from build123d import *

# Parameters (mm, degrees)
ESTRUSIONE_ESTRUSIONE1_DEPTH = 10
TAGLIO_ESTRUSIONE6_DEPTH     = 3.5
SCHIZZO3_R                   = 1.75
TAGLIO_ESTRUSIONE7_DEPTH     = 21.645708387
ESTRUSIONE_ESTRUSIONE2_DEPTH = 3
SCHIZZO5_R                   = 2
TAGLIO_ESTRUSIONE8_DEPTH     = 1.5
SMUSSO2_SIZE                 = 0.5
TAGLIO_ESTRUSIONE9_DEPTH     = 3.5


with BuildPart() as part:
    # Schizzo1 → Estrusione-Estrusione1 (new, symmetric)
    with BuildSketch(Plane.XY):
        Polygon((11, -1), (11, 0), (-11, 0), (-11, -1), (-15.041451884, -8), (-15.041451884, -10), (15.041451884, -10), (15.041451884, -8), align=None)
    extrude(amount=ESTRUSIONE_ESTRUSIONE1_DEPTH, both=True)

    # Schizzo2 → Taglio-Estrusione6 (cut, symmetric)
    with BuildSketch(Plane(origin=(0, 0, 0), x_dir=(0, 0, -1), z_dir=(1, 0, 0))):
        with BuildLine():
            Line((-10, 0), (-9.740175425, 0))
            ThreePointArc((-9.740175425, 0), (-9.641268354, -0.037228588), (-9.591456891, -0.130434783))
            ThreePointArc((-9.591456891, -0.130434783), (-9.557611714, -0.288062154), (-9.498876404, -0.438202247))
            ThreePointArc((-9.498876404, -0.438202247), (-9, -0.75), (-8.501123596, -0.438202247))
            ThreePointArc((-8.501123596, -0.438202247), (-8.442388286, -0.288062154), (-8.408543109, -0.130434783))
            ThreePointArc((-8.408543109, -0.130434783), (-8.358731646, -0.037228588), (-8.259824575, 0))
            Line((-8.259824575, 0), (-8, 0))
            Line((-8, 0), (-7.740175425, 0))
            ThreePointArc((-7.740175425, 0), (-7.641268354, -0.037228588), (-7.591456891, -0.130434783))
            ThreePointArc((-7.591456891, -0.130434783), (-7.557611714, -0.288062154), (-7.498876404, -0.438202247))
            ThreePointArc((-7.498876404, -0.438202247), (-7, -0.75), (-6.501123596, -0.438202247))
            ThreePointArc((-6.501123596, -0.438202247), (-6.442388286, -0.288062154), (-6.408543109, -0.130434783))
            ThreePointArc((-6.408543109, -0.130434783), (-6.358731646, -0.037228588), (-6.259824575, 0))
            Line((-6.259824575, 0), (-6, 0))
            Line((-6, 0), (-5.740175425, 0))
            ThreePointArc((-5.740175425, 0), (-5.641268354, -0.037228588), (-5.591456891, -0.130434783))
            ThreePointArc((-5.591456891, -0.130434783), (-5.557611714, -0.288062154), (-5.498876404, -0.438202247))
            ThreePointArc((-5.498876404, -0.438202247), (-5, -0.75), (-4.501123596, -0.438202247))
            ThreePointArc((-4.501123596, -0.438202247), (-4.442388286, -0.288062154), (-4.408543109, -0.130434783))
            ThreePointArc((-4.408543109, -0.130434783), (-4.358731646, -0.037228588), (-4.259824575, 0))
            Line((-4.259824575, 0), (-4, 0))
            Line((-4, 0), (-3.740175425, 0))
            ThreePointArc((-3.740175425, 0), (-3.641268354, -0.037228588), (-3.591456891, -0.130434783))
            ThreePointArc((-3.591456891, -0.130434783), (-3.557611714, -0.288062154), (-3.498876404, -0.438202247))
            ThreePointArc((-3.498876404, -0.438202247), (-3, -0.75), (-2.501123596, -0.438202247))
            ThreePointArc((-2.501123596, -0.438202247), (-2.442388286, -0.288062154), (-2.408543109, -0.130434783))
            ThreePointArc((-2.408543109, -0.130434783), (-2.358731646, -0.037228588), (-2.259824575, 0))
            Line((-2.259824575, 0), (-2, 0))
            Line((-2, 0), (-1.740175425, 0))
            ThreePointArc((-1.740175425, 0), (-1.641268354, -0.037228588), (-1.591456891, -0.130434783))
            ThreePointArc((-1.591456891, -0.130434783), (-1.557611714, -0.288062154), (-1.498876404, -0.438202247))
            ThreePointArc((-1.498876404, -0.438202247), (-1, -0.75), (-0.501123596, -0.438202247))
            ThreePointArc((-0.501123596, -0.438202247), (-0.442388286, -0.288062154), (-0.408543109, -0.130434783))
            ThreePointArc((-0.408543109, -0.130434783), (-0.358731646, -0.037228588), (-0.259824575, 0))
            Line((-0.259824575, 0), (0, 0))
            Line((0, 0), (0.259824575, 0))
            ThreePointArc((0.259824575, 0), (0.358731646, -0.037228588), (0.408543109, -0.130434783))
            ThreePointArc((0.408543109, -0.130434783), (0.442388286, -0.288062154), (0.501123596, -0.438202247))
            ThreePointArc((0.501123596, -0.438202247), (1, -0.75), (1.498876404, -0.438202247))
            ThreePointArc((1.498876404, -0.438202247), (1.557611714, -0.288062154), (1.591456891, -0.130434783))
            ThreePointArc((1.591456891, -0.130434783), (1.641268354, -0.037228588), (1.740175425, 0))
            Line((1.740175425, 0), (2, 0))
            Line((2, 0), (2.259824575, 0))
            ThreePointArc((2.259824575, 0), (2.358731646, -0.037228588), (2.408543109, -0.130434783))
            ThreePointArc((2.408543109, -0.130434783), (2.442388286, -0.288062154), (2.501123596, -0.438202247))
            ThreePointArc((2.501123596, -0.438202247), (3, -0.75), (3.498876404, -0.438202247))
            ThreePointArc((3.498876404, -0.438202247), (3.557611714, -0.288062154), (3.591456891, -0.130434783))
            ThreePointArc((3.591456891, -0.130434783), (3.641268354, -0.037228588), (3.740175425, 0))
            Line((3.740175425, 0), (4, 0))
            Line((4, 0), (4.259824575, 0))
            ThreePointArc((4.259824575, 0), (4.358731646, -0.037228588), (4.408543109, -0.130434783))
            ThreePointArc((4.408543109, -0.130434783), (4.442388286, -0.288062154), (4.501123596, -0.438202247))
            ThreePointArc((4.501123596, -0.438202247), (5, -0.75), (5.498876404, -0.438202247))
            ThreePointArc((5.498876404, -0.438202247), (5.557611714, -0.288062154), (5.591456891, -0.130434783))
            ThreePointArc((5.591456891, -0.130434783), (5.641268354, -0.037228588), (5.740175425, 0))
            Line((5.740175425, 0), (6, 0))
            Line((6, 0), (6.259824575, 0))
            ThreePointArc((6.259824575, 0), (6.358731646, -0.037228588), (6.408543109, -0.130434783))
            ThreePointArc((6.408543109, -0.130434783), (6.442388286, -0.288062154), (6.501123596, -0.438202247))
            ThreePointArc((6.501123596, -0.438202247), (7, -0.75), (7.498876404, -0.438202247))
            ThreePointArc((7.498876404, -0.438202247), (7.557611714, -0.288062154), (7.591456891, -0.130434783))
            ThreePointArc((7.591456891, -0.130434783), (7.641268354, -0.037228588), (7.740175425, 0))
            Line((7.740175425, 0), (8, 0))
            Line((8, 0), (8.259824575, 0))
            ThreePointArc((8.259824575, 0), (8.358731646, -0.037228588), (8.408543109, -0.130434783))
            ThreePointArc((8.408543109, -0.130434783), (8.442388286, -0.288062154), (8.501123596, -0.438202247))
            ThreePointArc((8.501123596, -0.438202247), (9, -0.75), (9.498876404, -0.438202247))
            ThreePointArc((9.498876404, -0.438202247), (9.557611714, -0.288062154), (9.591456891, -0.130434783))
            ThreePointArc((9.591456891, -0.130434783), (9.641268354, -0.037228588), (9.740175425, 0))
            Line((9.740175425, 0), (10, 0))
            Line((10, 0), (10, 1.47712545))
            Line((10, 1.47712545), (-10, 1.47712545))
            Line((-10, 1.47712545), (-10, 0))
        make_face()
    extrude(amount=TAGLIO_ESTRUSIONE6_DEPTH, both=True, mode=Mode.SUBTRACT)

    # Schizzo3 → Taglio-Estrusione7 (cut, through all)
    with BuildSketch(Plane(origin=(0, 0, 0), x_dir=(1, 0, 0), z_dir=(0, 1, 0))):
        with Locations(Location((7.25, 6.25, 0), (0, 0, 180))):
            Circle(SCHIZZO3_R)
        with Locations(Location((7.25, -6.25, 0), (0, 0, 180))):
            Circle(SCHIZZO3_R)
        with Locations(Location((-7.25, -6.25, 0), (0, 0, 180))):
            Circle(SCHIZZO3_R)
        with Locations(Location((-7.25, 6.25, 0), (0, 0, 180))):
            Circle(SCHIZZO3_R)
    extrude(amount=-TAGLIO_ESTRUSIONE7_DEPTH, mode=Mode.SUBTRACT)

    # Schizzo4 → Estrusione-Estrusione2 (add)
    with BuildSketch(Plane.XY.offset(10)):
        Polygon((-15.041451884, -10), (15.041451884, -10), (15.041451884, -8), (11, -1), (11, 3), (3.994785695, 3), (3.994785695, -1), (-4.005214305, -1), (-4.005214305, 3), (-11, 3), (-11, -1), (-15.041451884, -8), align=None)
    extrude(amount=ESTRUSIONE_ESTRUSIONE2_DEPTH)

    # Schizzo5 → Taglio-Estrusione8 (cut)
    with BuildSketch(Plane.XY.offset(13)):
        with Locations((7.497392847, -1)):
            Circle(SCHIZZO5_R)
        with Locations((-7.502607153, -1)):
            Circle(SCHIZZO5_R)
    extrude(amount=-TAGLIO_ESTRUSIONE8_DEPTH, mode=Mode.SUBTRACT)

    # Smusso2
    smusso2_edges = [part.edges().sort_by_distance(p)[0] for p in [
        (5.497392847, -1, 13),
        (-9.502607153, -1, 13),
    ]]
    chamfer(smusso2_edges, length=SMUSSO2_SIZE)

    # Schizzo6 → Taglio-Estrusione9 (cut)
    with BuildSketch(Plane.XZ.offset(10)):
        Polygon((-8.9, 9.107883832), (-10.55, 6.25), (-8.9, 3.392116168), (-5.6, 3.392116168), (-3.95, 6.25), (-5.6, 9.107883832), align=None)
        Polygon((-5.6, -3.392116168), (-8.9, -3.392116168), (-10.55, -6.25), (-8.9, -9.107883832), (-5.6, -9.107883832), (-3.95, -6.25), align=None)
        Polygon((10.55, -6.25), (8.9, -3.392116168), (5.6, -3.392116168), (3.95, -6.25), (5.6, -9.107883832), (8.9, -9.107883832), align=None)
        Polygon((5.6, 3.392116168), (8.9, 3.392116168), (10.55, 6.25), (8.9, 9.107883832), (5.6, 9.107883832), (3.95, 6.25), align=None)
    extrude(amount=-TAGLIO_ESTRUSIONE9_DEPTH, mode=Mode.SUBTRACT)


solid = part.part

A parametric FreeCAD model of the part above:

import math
import FreeCAD as App
import Part
import Sketcher

V = App.Vector
Q = App.Units.Quantity


def edges_at(feature, points):
    """Names of the edges that pass closest to the given points."""
    edges = feature.Shape.Edges
    near = lambda p: min(range(len(edges)), key=lambda i: edges[i].distToShape(Part.Vertex(*p))[0])
    return sorted({f"Edge{near(p) + 1}" for p in points})


def add_polygon(sketch, points):
    """Adds a closed chain of lines whose ends are joined by coincident constraints."""
    first, n = sketch.GeometryCount, len(points)
    for a, b in zip(points, points[1:] + points[:1]):
        sketch.addGeometry(Part.LineSegment(App.Vector(*a, 0), App.Vector(*b, 0)), False)
    for i in range(n):
        sketch.addConstraint(Sketcher.Constraint("Coincident", first + i, 2, first + (i + 1) % n, 1))

doc = App.newDocument("Part")
body = doc.addObject("PartDesign::Body", "Body")

# Sketch on XY plane
sketch1 = doc.addObject("Sketcher::SketchObject", "Sketch")
body.addObject(sketch1)
sketch1.AttachmentSupport = (doc.XY_Plane, [""])
sketch1.MapMode = "FlatFace"
add_polygon(sketch1, [(11, -1), (11, 0), (-11, 0), (-11, -1), (-15.041452, -8), (-15.041452, -10), (15.041452, -10), (15.041452, -8)])  # lines 0-7
sketch1.addConstraint([
    Sketcher.Constraint("Vertical", 0),
    Sketcher.Constraint("Horizontal", 1),
    Sketcher.Constraint("Vertical", 2),
    Sketcher.Constraint("Vertical", 4),
    Sketcher.Constraint("Horizontal", 5),
    Sketcher.Constraint("Vertical", 6),
    Sketcher.Constraint("Symmetric", 0, 2, 1, 2, -1, 1),
    Sketcher.Constraint("Symmetric", 3, 2, 6, 2, -2),
    Sketcher.Constraint("Horizontal", 2, 2, 7, 2),
    Sketcher.Constraint("DistanceX", 1, 2, 1, 1, Q("22 mm")),
    Sketcher.Constraint("DistanceY", 0, 1, 0, 2, Q("1 mm")),
    Sketcher.Constraint("DistanceY", 4, 2, 4, 1, Q("2 mm")),
    Sketcher.Constraint("Angle", 3, Q("-120 deg")),
    Sketcher.Constraint("DistanceY", 3, 2, -1, 1, Q("8 mm")),
])
pad1 = doc.addObject("PartDesign::Pad", "Pad")
body.addObject(pad1)
pad1.Profile = sketch1
pad1.Length = 20
pad1.Midplane = True

# Sketch on YZ plane
sketch2 = doc.addObject("Sketcher::SketchObject", "Sketch001")
body.addObject(sketch2)
sketch2.AttachmentSupport = (doc.YZ_Plane, [""])
sketch2.MapMode = "FlatFace"
sketch2.addGeometry([
    Part.LineSegment(V(0, 10, 0), V(0, 9.740175, 0)),  # 0
    Part.ArcOfCircle(Part.Circle(V(-0.15, 9.740175, 0), V(0, 0, 1), 0.15), math.radians(-82.505283), math.radians(0)),  # 1
    Part.ArcOfCircle(Part.Circle(V(0, 8.6, 0), V(0, 0, 1), 1), math.radians(97.494717), math.radians(115.989234)),  # 2
    Part.ArcOfCircle(Part.Circle(V(-0.195, 9, 0), V(0, 0, 1), 0.555), math.radians(115.989233), math.radians(244.010767)),  # 3
    Part.ArcOfCircle(Part.Circle(V(0, 9.4, 0), V(0, 0, 1), 1), math.radians(-115.989234), math.radians(-97.494717)),  # 4
    Part.ArcOfCircle(Part.Circle(V(-0.15, 8.259825, 0), V(0, 0, 1), 0.15), math.radians(0), math.radians(82.505283)),  # 5
    Part.LineSegment(V(0, 8.259825, 0), V(0, 7.740175, 0)),  # 6
    Part.ArcOfCircle(Part.Circle(V(-0.15, 7.740175, 0), V(0, 0, 1), 0.15), math.radians(-82.505283), math.radians(0)),  # 7
    Part.ArcOfCircle(Part.Circle(V(0, 6.6, 0), V(0, 0, 1), 1), math.radians(97.494717), math.radians(115.989234)),  # 8
    Part.ArcOfCircle(Part.Circle(V(-0.195, 7, 0), V(0, 0, 1), 0.555), math.radians(115.989233), math.radians(244.010767)),  # 9
    Part.ArcOfCircle(Part.Circle(V(0, 7.4, 0), V(0, 0, 1), 1), math.radians(-115.989234), math.radians(-97.494717)),  # 10
    Part.ArcOfCircle(Part.Circle(V(-0.15, 6.259825, 0), V(0, 0, 1), 0.15), math.radians(0), math.radians(82.505283)),  # 11
    Part.LineSegment(V(0, 6.259825, 0), V(0, 5.740175, 0)),  # 12
    Part.ArcOfCircle(Part.Circle(V(-0.15, 5.740175, 0), V(0, 0, 1), 0.15), math.radians(-82.505283), math.radians(0)),  # 13
    Part.ArcOfCircle(Part.Circle(V(0, 4.6, 0), V(0, 0, 1), 1), math.radians(97.494717), math.radians(115.989234)),  # 14
    Part.ArcOfCircle(Part.Circle(V(-0.195, 5, 0), V(0, 0, 1), 0.555), math.radians(115.989233), math.radians(244.010767)),  # 15
    Part.ArcOfCircle(Part.Circle(V(0, 5.4, 0), V(0, 0, 1), 1), math.radians(-115.989234), math.radians(-97.494717)),  # 16
    Part.ArcOfCircle(Part.Circle(V(-0.15, 4.259825, 0), V(0, 0, 1), 0.15), math.radians(0), math.radians(82.505283)),  # 17
    Part.LineSegment(V(0, 4.259825, 0), V(0, 3.740175, 0)),  # 18
    Part.ArcOfCircle(Part.Circle(V(-0.15, 3.740175, 0), V(0, 0, 1), 0.15), math.radians(-82.505283), math.radians(0)),  # 19
    Part.ArcOfCircle(Part.Circle(V(0, 2.6, 0), V(0, 0, 1), 1), math.radians(97.494717), math.radians(115.989234)),  # 20
    Part.ArcOfCircle(Part.Circle(V(-0.195, 3, 0), V(0, 0, 1), 0.555), math.radians(115.989233), math.radians(244.010767)),  # 21
    Part.ArcOfCircle(Part.Circle(V(0, 3.4, 0), V(0, 0, 1), 1), math.radians(-115.989234), math.radians(-97.494717)),  # 22
    Part.ArcOfCircle(Part.Circle(V(-0.15, 2.259825, 0), V(0, 0, 1), 0.15), math.radians(0), math.radians(82.505283)),  # 23
    Part.LineSegment(V(0, 2.259825, 0), V(0, 1.740175, 0)),  # 24
    Part.ArcOfCircle(Part.Circle(V(-0.15, 1.740175, 0), V(0, 0, 1), 0.15), math.radians(-82.505283), math.radians(0)),  # 25
    Part.ArcOfCircle(Part.Circle(V(0, 0.6, 0), V(0, 0, 1), 1), math.radians(97.494717), math.radians(115.989234)),  # 26
    Part.ArcOfCircle(Part.Circle(V(-0.195, 1, 0), V(0, 0, 1), 0.555), math.radians(115.989233), math.radians(244.010767)),  # 27
    Part.ArcOfCircle(Part.Circle(V(0, 1.4, 0), V(0, 0, 1), 1), math.radians(-115.989234), math.radians(-97.494717)),  # 28
    Part.ArcOfCircle(Part.Circle(V(-0.15, 0.259825, 0), V(0, 0, 1), 0.15), math.radians(0), math.radians(82.505283)),  # 29
    Part.LineSegment(V(0, 0.259825, 0), V(0, -0.259825, 0)),  # 30
    Part.ArcOfCircle(Part.Circle(V(-0.15, -0.259825, 0), V(0, 0, 1), 0.15), math.radians(-82.505283), math.radians(0)),  # 31
    Part.ArcOfCircle(Part.Circle(V(0, -1.4, 0), V(0, 0, 1), 1), math.radians(97.494717), math.radians(115.989234)),  # 32
    Part.ArcOfCircle(Part.Circle(V(-0.195, -1, 0), V(0, 0, 1), 0.555), math.radians(115.989233), math.radians(244.010767)),  # 33
    Part.ArcOfCircle(Part.Circle(V(0, -0.6, 0), V(0, 0, 1), 1), math.radians(-115.989234), math.radians(-97.494717)),  # 34
    Part.ArcOfCircle(Part.Circle(V(-0.15, -1.740175, 0), V(0, 0, 1), 0.15), math.radians(0), math.radians(82.505283)),  # 35
    Part.LineSegment(V(0, -1.740175, 0), V(0, -2.259825, 0)),  # 36
    Part.ArcOfCircle(Part.Circle(V(-0.15, -2.259825, 0), V(0, 0, 1), 0.15), math.radians(-82.505283), math.radians(0)),  # 37
    Part.ArcOfCircle(Part.Circle(V(0, -3.4, 0), V(0, 0, 1), 1), math.radians(97.494717), math.radians(115.989234)),  # 38
    Part.ArcOfCircle(Part.Circle(V(-0.195, -3, 0), V(0, 0, 1), 0.555), math.radians(115.989233), math.radians(244.010767)),  # 39
    Part.ArcOfCircle(Part.Circle(V(0, -2.6, 0), V(0, 0, 1), 1), math.radians(-115.989234), math.radians(-97.494717)),  # 40
    Part.ArcOfCircle(Part.Circle(V(-0.15, -3.740175, 0), V(0, 0, 1), 0.15), math.radians(0), math.radians(82.505283)),  # 41
    Part.LineSegment(V(0, -3.740175, 0), V(0, -4.259825, 0)),  # 42
    Part.ArcOfCircle(Part.Circle(V(-0.15, -4.259825, 0), V(0, 0, 1), 0.15), math.radians(-82.505283), math.radians(0)),  # 43
    Part.ArcOfCircle(Part.Circle(V(0, -5.4, 0), V(0, 0, 1), 1), math.radians(97.494717), math.radians(115.989234)),  # 44
    Part.ArcOfCircle(Part.Circle(V(-0.195, -5, 0), V(0, 0, 1), 0.555), math.radians(115.989233), math.radians(244.010767)),  # 45
    Part.ArcOfCircle(Part.Circle(V(0, -4.6, 0), V(0, 0, 1), 1), math.radians(-115.989234), math.radians(-97.494717)),  # 46
    Part.ArcOfCircle(Part.Circle(V(-0.15, -5.740175, 0), V(0, 0, 1), 0.15), math.radians(0), math.radians(82.505283)),  # 47
    Part.LineSegment(V(0, -5.740175, 0), V(0, -6.259825, 0)),  # 48
    Part.ArcOfCircle(Part.Circle(V(-0.15, -6.259825, 0), V(0, 0, 1), 0.15), math.radians(-82.505283), math.radians(0)),  # 49
    Part.ArcOfCircle(Part.Circle(V(0, -7.4, 0), V(0, 0, 1), 1), math.radians(97.494717), math.radians(115.989234)),  # 50
    Part.ArcOfCircle(Part.Circle(V(-0.195, -7, 0), V(0, 0, 1), 0.555), math.radians(115.989233), math.radians(244.010767)),  # 51
    Part.ArcOfCircle(Part.Circle(V(0, -6.6, 0), V(0, 0, 1), 1), math.radians(-115.989234), math.radians(-97.494717)),  # 52
    Part.ArcOfCircle(Part.Circle(V(-0.15, -7.740175, 0), V(0, 0, 1), 0.15), math.radians(0), math.radians(82.505283)),  # 53
    Part.LineSegment(V(0, -7.740175, 0), V(0, -8.259825, 0)),  # 54
    Part.ArcOfCircle(Part.Circle(V(-0.15, -8.259825, 0), V(0, 0, 1), 0.15), math.radians(-82.505283), math.radians(0)),  # 55
    Part.ArcOfCircle(Part.Circle(V(0, -9.4, 0), V(0, 0, 1), 1), math.radians(97.494717), math.radians(115.989234)),  # 56
    Part.ArcOfCircle(Part.Circle(V(-0.195, -9, 0), V(0, 0, 1), 0.555), math.radians(115.989233), math.radians(244.010767)),  # 57
    Part.ArcOfCircle(Part.Circle(V(0, -8.6, 0), V(0, 0, 1), 1), math.radians(-115.989234), math.radians(-97.494717)),  # 58
    Part.ArcOfCircle(Part.Circle(V(-0.15, -9.740175, 0), V(0, 0, 1), 0.15), math.radians(0), math.radians(82.505283)),  # 59
    Part.LineSegment(V(0, -9.740175, 0), V(0, -10, 0)),  # 60
    Part.LineSegment(V(0, -10, 0), V(1.477125, -10, 0)),  # 61
    Part.LineSegment(V(1.477125, -10, 0), V(1.477125, 10, 0)),  # 62
    Part.LineSegment(V(1.477125, 10, 0), V(0, 10, 0)),  # 63
], False)
sketch2.addConstraint([
    Sketcher.Constraint("Tangent", 0, 2, 1, 2),
    Sketcher.Constraint("Tangent", 1, 1, 2, 1),
    Sketcher.Constraint("Tangent", 2, 2, 3, 1),
    Sketcher.Constraint("Tangent", 3, 2, 4, 1),
    Sketcher.Constraint("Tangent", 4, 2, 5, 2),
    Sketcher.Constraint("Tangent", 5, 1, 6, 1),
    Sketcher.Constraint("Tangent", 6, 2, 7, 2),
    Sketcher.Constraint("Tangent", 7, 1, 8, 1),
    Sketcher.Constraint("Tangent", 8, 2, 9, 1),
    Sketcher.Constraint("Tangent", 9, 2, 10, 1),
    Sketcher.Constraint("Tangent", 10, 2, 11, 2),
    Sketcher.Constraint("Tangent", 11, 1, 12, 1),
    Sketcher.Constraint("Tangent", 12, 2, 13, 2),
    Sketcher.Constraint("Tangent", 13, 1, 14, 1),
    Sketcher.Constraint("Tangent", 14, 2, 15, 1),
    Sketcher.Constraint("Tangent", 15, 2, 16, 1),
    Sketcher.Constraint("Tangent", 16, 2, 17, 2),
    Sketcher.Constraint("Tangent", 17, 1, 18, 1),
    Sketcher.Constraint("Tangent", 18, 2, 19, 2),
    Sketcher.Constraint("Tangent", 19, 1, 20, 1),
    Sketcher.Constraint("Tangent", 20, 2, 21, 1),
    Sketcher.Constraint("Tangent", 21, 2, 22, 1),
    Sketcher.Constraint("Tangent", 22, 2, 23, 2),
    Sketcher.Constraint("Tangent", 23, 1, 24, 1),
    Sketcher.Constraint("Tangent", 24, 2, 25, 2),
    Sketcher.Constraint("Tangent", 25, 1, 26, 1),
    Sketcher.Constraint("Tangent", 26, 2, 27, 1),
    Sketcher.Constraint("Tangent", 27, 2, 28, 1),
    Sketcher.Constraint("Tangent", 28, 2, 29, 2),
    Sketcher.Constraint("Tangent", 29, 1, 30, 1),
    Sketcher.Constraint("Tangent", 30, 2, 31, 2),
    Sketcher.Constraint("Tangent", 31, 1, 32, 1),
    Sketcher.Constraint("Tangent", 32, 2, 33, 1),
    Sketcher.Constraint("Tangent", 33, 2, 34, 1),
    Sketcher.Constraint("Tangent", 34, 2, 35, 2),
    Sketcher.Constraint("Tangent", 35, 1, 36, 1),
    Sketcher.Constraint("Tangent", 36, 2, 37, 2),
    Sketcher.Constraint("Tangent", 37, 1, 38, 1),
    Sketcher.Constraint("Tangent", 38, 2, 39, 1),
    Sketcher.Constraint("Tangent", 39, 2, 40, 1),
    Sketcher.Constraint("Tangent", 40, 2, 41, 2),
    Sketcher.Constraint("Tangent", 41, 1, 42, 1),
    Sketcher.Constraint("Tangent", 42, 2, 43, 2),
    Sketcher.Constraint("Tangent", 43, 1, 44, 1),
    Sketcher.Constraint("Tangent", 44, 2, 45, 1),
    Sketcher.Constraint("Tangent", 45, 2, 46, 1),
    Sketcher.Constraint("Tangent", 46, 2, 47, 2),
    Sketcher.Constraint("Tangent", 47, 1, 48, 1),
    Sketcher.Constraint("Tangent", 48, 2, 49, 2),
    Sketcher.Constraint("Tangent", 49, 1, 50, 1),
    Sketcher.Constraint("Tangent", 50, 2, 51, 1),
    Sketcher.Constraint("Tangent", 51, 2, 52, 1),
    Sketcher.Constraint("Tangent", 52, 2, 53, 2),
    Sketcher.Constraint("Tangent", 53, 1, 54, 1),
    Sketcher.Constraint("Tangent", 54, 2, 55, 2),
    Sketcher.Constraint("Tangent", 55, 1, 56, 1),
    Sketcher.Constraint("Tangent", 56, 2, 57, 1),
    Sketcher.Constraint("Tangent", 57, 2, 58, 1),
    Sketcher.Constraint("Tangent", 58, 2, 59, 2),
    Sketcher.Constraint("Tangent", 59, 1, 60, 1),
    Sketcher.Constraint("Coincident", 60, 2, 61, 1),
    Sketcher.Constraint("Coincident", 61, 2, 62, 1),
    Sketcher.Constraint("Coincident", 62, 2, 63, 1),
    Sketcher.Constraint("Coincident", 63, 2, 0, 1),
    Sketcher.Constraint("Vertical", 0),
    Sketcher.Constraint("Vertical", 6),
    Sketcher.Constraint("Vertical", 12),
    Sketcher.Constraint("Vertical", 18),
    Sketcher.Constraint("Vertical", 24),
    Sketcher.Constraint("Vertical", 30),
    Sketcher.Constraint("Vertical", 36),
    Sketcher.Constraint("Vertical", 42),
    Sketcher.Constraint("Vertical", 48),
    Sketcher.Constraint("Vertical", 54),
    Sketcher.Constraint("Vertical", 60),
    Sketcher.Constraint("Horizontal", 61),
    Sketcher.Constraint("Vertical", 62),
    Sketcher.Constraint("Horizontal", 63),
    Sketcher.Constraint("Equal", 2, 4),
    Sketcher.Constraint("Equal", 1, 5),
    Sketcher.Constraint("Equal", 5, 7),
    Sketcher.Constraint("Equal", 4, 8),
    Sketcher.Constraint("Equal", 3, 9),
    Sketcher.Constraint("Equal", 8, 10),
    Sketcher.Constraint("Equal", 7, 11),
    Sketcher.Constraint("Equal", 11, 13),
    Sketcher.Constraint("Equal", 10, 14),
    Sketcher.Constraint("Equal", 9, 15),
    Sketcher.Constraint("Equal", 14, 16),
    Sketcher.Constraint("Equal", 13, 17),
    Sketcher.Constraint("Equal", 17, 19),
    Sketcher.Constraint("Equal", 16, 20),
    Sketcher.Constraint("Equal", 15, 21),
    Sketcher.Constraint("Equal", 20, 22),
    Sketcher.Constraint("Equal", 19, 23),
    Sketcher.Constraint("Equal", 23, 25),
    Sketcher.Constraint("Equal", 22, 26),
    Sketcher.Constraint("Equal", 21, 27),
    Sketcher.Constraint("Equal", 26, 28),
    Sketcher.Constraint("Equal", 25, 29),
    Sketcher.Constraint("Equal", 29, 31),
    Sketcher.Constraint("Equal", 28, 32),
    Sketcher.Constraint("Equal", 27, 33),
    Sketcher.Constraint("Equal", 32, 34),
    Sketcher.Constraint("Equal", 31, 35),
    Sketcher.Constraint("Equal", 35, 37),
    Sketcher.Constraint("Equal", 34, 38),
    Sketcher.Constraint("Equal", 33, 39),
    Sketcher.Constraint("Equal", 38, 40),
    Sketcher.Constraint("Equal", 37, 41),
    Sketcher.Constraint("Equal", 41, 43),
    Sketcher.Constraint("Equal", 40, 44),
    Sketcher.Constraint("Equal", 39, 45),
    Sketcher.Constraint("Equal", 44, 46),
    Sketcher.Constraint("Equal", 43, 47),
    Sketcher.Constraint("Equal", 47, 49),
    Sketcher.Constraint("Equal", 46, 50),
    Sketcher.Constraint("Equal", 45, 51),
    Sketcher.Constraint("Equal", 50, 52),
    Sketcher.Constraint("Equal", 49, 53),
    Sketcher.Constraint("Equal", 53, 55),
    Sketcher.Constraint("Equal", 52, 56),
    Sketcher.Constraint("Equal", 51, 57),
    Sketcher.Constraint("Equal", 56, 58),
    Sketcher.Constraint("Equal", 55, 59),
    Sketcher.Constraint("Symmetric", 28, 3, 32, 3, -1, 1),
    Sketcher.Constraint("Symmetric", 26, 3, 34, 3, -1, 1),
    Sketcher.Constraint("Symmetric", 22, 3, 38, 3, -1, 1),
    Sketcher.Constraint("Symmetric", 20, 3, 40, 3, -1, 1),
    Sketcher.Constraint("Symmetric", 16, 3, 44, 3, -1, 1),
    Sketcher.Constraint("Symmetric", 14, 3, 46, 3, -1, 1),
    Sketcher.Constraint("Symmetric", 10, 3, 50, 3, -1, 1),
    Sketcher.Constraint("Symmetric", 8, 3, 52, 3, -1, 1),
    Sketcher.Constraint("Symmetric", 4, 3, 56, 3, -1, 1),
    Sketcher.Constraint("Symmetric", 2, 3, 58, 3, -1, 1),
    Sketcher.Constraint("Symmetric", 29, 1, 30, 2, -1, 1),
    Sketcher.Constraint("Symmetric", 24, 2, 35, 1, -1, 1),
    Sketcher.Constraint("Symmetric", 18, 2, 41, 1, -1, 1),
    Sketcher.Constraint("Symmetric", 12, 2, 47, 1, -1, 1),
    Sketcher.Constraint("Symmetric", 6, 2, 53, 1, -1, 1),
    Sketcher.Constraint("Symmetric", 0, 2, 59, 1, -1, 1),
    Sketcher.Constraint("Symmetric", 23, 3, 37, 3, -1),
    Sketcher.Constraint("Symmetric", 17, 3, 43, 3, -1),
    Sketcher.Constraint("Symmetric", 11, 3, 49, 3, -1),
    Sketcher.Constraint("Symmetric", 5, 3, 55, 3, -1),
    Sketcher.Constraint("Symmetric", 60, 2, 63, 2, -1),
    Sketcher.Constraint("Vertical", 3, 3, 9, 3),
    Sketcher.Constraint("Vertical", 9, 3, 15, 3),
    Sketcher.Constraint("Vertical", 15, 3, 21, 3),
    Sketcher.Constraint("Vertical", 21, 3, 27, 3),
    Sketcher.Constraint("Equal", 6, 12),
    Sketcher.Constraint("Equal", 12, 18),
    Sketcher.Constraint("Equal", 18, 24),
    Sketcher.Constraint("Equal", 24, 30),
    Sketcher.Constraint("Radius", 2, Q("1 mm")),
    Sketcher.Constraint("DistanceY", 62, 1, 62, 2, Q("20 mm")),
    Sketcher.Constraint("Radius", 1, Q("0.15 mm")),
    Sketcher.Constraint("DistanceY", -1, 1, 3, 3, Q("9 mm")),
    Sketcher.Constraint("Radius", 3, Q("0.555 mm")),
    Sketcher.Constraint("DistanceY", -1, 1, 2, 3, Q("8.6 mm")),
    Sketcher.Constraint("DistanceX", 61, 1, 61, 2, Q("1.477125 mm")),
])
pocket1 = doc.addObject("PartDesign::Pocket", "Pocket")
body.addObject(pocket1)
pocket1.Profile = sketch2
pocket1.Length = 7
pocket1.Midplane = True

# Sketch on XZ plane
sketch3 = doc.addObject("Sketcher::SketchObject", "Sketch002")
body.addObject(sketch3)
sketch3.AttachmentSupport = (doc.XZ_Plane, [""])
sketch3.MapMode = "FlatFace"
sketch3.addGeometry([
    Part.Circle(V(7.25, -6.25, 0), V(0, 0, 1), 1.75),
    Part.Circle(V(7.25, 6.25, 0), V(0, 0, 1), 1.75),
    Part.Circle(V(-7.25, 6.25, 0), V(0, 0, 1), 1.75),
    Part.Circle(V(-7.25, -6.25, 0), V(0, 0, 1), 1.75),
], False)
sketch3.addConstraint([
    Sketcher.Constraint("Equal", 0, 1),
    Sketcher.Constraint("Equal", 1, 2),
    Sketcher.Constraint("Equal", 2, 3),
    Sketcher.Constraint("Symmetric", 0, 3, 2, 3, -1, 1),
    Sketcher.Constraint("Symmetric", 1, 3, 3, 3, -1, 1),
    Sketcher.Constraint("Symmetric", 1, 3, 2, 3, -2),
    Sketcher.Constraint("Diameter", 0, Q("3.5 mm")),
    Sketcher.Constraint("DistanceY", 0, 3, 1, 3, Q("12.5 mm")),
    Sketcher.Constraint("DistanceX", 2, 3, 1, 3, Q("14.5 mm")),
])
pocket2 = doc.addObject("PartDesign::Pocket", "Pocket001")
body.addObject(pocket2)
pocket2.Profile = sketch3
pocket2.Type = "ThroughAll"
pocket2.Reversed = True

# Sketch on XY plane
sketch4 = doc.addObject("Sketcher::SketchObject", "Sketch003")
body.addObject(sketch4)
sketch4.AttachmentSupport = (doc.XY_Plane, [""])
sketch4.MapMode = "FlatFace"
sketch4.AttachmentOffset = App.Placement(V(0, 0, 10), App.Rotation())
add_polygon(sketch4, [(-15.041452, -10), (15.041452, -10), (15.041452, -8), (11, -1), (11, 3), (3.994786, 3), (3.994786, -1), (-4.005214, -1), (-4.005214, 3), (-11, 3), (-11, -1), (-15.041452, -8)])  # lines 0-11
sketch4.addConstraint([
    Sketcher.Constraint("Horizontal", 0),
    Sketcher.Constraint("Vertical", 1),
    Sketcher.Constraint("Vertical", 3),
    Sketcher.Constraint("Horizontal", 4),
    Sketcher.Constraint("Vertical", 5),
    Sketcher.Constraint("Horizontal", 6),
    Sketcher.Constraint("Vertical", 7),
    Sketcher.Constraint("Horizontal", 8),
    Sketcher.Constraint("Vertical", 9),
    Sketcher.Constraint("Vertical", 11),
    Sketcher.Constraint("Symmetric", 3, 2, 8, 2, -2),
    Sketcher.Constraint("Symmetric", 1, 2, 10, 2, -2),
    Sketcher.Constraint("Horizontal", 2, 2, 5, 2),
    Sketcher.Constraint("Horizontal", 6, 2, 9, 2),
    Sketcher.Constraint("DistanceX", 6, 2, 6, 1, Q("8 mm")),
    Sketcher.Constraint("DistanceY", 1, 1, 1, 2, Q("2 mm")),
    Sketcher.Constraint("DistanceY", 3, 1, 3, 2, Q("4 mm")),
    Sketcher.Constraint("Angle", 2, Q("120 deg")),
    Sketcher.Constraint("DistanceY", 0, 2, -1, 1, Q("10 mm")),
    Sketcher.Constraint("DistanceX", -1, 1, 2, 2, Q("11 mm")),
    Sketcher.Constraint("DistanceY", 2, 2, -1, 1, Q("1 mm")),
    Sketcher.Constraint("DistanceX", 4, 2, 4, 1, Q("7.005214 mm")),
])
pad2 = doc.addObject("PartDesign::Pad", "Pad001")
body.addObject(pad2)
pad2.Profile = sketch4
pad2.Length = 3

# Sketch on XY plane
sketch5 = doc.addObject("Sketcher::SketchObject", "Sketch004")
body.addObject(sketch5)
sketch5.AttachmentSupport = (doc.XY_Plane, [""])
sketch5.MapMode = "FlatFace"
sketch5.AttachmentOffset = App.Placement(V(0, 0, 13), App.Rotation())
sketch5.addGeometry([
    Part.Circle(V(7.497393, -1, 0), V(0, 0, 1), 2),
    Part.Circle(V(-7.502607, -1, 0), V(0, 0, 1), 2),
], False)
sketch5.addConstraint([
    Sketcher.Constraint("Equal", 0, 1),
    Sketcher.Constraint("Horizontal", 0, 3, 1, 3),
    Sketcher.Constraint("Diameter", 0, Q("4 mm")),
    Sketcher.Constraint("DistanceY", 0, 3, -1, 1, Q("1 mm")),
    Sketcher.Constraint("DistanceX", 1, 3, 0, 3, Q("15 mm")),
    Sketcher.Constraint("DistanceX", -1, 1, 0, 3, Q("7.497393 mm")),
])
pocket3 = doc.addObject("PartDesign::Pocket", "Pocket002")
body.addObject(pocket3)
pocket3.Profile = sketch5
pocket3.Length = 1.5
doc.recompute()

chamfer = doc.addObject("PartDesign::Chamfer", "Chamfer")
body.addObject(chamfer)
chamfer.Base = (pocket3, edges_at(pocket3, [(5.497, -1, 13), (-9.503, -1, 13)]))
chamfer.Size = 0.5

# Sketch on XZ plane
sketch6 = doc.addObject("Sketcher::SketchObject", "Sketch005")
body.addObject(sketch6)
sketch6.AttachmentSupport = (doc.XZ_Plane, [""])
sketch6.MapMode = "FlatFace"
sketch6.AttachmentOffset = App.Placement(V(0, 0, 10), App.Rotation())
add_polygon(sketch6, [(-8.9, 9.107884), (-10.55, 6.25), (-8.9, 3.392116), (-5.6, 3.392116), (-3.95, 6.25), (-5.6, 9.107884)])  # lines 0-5
add_polygon(sketch6, [(-5.6, -3.392116), (-8.9, -3.392116), (-10.55, -6.25), (-8.9, -9.107884), (-5.6, -9.107884), (-3.95, -6.25)])  # lines 6-11
add_polygon(sketch6, [(10.55, -6.25), (8.9, -3.392116), (5.6, -3.392116), (3.95, -6.25), (5.6, -9.107884), (8.9, -9.107884)])  # lines 12-17
add_polygon(sketch6, [(5.6, 3.392116), (8.9, 3.392116), (10.55, 6.25), (8.9, 9.107884), (5.6, 9.107884), (3.95, 6.25)])  # lines 18-23
sketch6.addConstraint([
    Sketcher.Constraint("Horizontal", 2),
    Sketcher.Constraint("Horizontal", 5),
    Sketcher.Constraint("Horizontal", 6),
    Sketcher.Constraint("Horizontal", 9),
    Sketcher.Constraint("Horizontal", 13),
    Sketcher.Constraint("Horizontal", 16),
    Sketcher.Constraint("Horizontal", 18),
    Sketcher.Constraint("Horizontal", 21),
    Sketcher.Constraint("Symmetric", 1, 2, 12, 2, -1, 1),
    Sketcher.Constraint("Symmetric", 3, 2, 14, 2, -1, 1),
    Sketcher.Constraint("Symmetric", 4, 2, 15, 2, -1, 1),
    Sketcher.Constraint("Symmetric", 0, 2, 17, 2, -1, 1),
    Sketcher.Constraint("Symmetric", 6, 2, 18, 2, -1, 1),
    Sketcher.Constraint("Symmetric", 7, 2, 19, 2, -1, 1),
    Sketcher.Constraint("Symmetric", 8, 2, 20, 2, -1, 1),
    Sketcher.Constraint("Symmetric", 10, 2, 22, 2, -1, 1),
    Sketcher.Constraint("Symmetric", 6, 2, 12, 2, -2),
    Sketcher.Constraint("Symmetric", 10, 2, 14, 2, -2),
    Sketcher.Constraint("Symmetric", 9, 2, 15, 2, -2),
    Sketcher.Constraint("Symmetric", 7, 2, 17, 2, -2),
    Sketcher.Constraint("Parallel", 0, 3),
    Sketcher.Constraint("Parallel", 1, 4),
    Sketcher.Constraint("Parallel", 3, 7),
    Sketcher.Constraint("Parallel", 4, 8),
    Sketcher.Constraint("Parallel", 8, 11),
    Sketcher.Constraint("Parallel", 10, 14),
    Sketcher.Constraint("Parallel", 14, 17),
    Sketcher.Constraint("Parallel", 19, 22),
    Sketcher.Constraint("Parallel", 20, 23),
    Sketcher.Constraint("Horizontal", 0, 2, 3, 2),
    Sketcher.Constraint("Vertical", 2, 2, 4, 2),
    Sketcher.Constraint("Angle", 0, Q("-120 deg")),
    Sketcher.Constraint("DistanceX", 2, 1, 2, 2, Q("3.3 mm")),
    Sketcher.Constraint("Distance", 0, Q("3.3 mm")),
    Sketcher.Constraint("DistanceX", 1, 2, -1, 1, Q("8.9 mm")),
    Sketcher.Constraint("DistanceY", 6, 2, 5, 2, Q("12.5 mm")),
])
pocket4 = doc.addObject("PartDesign::Pocket", "Pocket003")
body.addObject(pocket4)
pocket4.Profile = sketch6
pocket4.Length = 3.5

doc.recompute()
